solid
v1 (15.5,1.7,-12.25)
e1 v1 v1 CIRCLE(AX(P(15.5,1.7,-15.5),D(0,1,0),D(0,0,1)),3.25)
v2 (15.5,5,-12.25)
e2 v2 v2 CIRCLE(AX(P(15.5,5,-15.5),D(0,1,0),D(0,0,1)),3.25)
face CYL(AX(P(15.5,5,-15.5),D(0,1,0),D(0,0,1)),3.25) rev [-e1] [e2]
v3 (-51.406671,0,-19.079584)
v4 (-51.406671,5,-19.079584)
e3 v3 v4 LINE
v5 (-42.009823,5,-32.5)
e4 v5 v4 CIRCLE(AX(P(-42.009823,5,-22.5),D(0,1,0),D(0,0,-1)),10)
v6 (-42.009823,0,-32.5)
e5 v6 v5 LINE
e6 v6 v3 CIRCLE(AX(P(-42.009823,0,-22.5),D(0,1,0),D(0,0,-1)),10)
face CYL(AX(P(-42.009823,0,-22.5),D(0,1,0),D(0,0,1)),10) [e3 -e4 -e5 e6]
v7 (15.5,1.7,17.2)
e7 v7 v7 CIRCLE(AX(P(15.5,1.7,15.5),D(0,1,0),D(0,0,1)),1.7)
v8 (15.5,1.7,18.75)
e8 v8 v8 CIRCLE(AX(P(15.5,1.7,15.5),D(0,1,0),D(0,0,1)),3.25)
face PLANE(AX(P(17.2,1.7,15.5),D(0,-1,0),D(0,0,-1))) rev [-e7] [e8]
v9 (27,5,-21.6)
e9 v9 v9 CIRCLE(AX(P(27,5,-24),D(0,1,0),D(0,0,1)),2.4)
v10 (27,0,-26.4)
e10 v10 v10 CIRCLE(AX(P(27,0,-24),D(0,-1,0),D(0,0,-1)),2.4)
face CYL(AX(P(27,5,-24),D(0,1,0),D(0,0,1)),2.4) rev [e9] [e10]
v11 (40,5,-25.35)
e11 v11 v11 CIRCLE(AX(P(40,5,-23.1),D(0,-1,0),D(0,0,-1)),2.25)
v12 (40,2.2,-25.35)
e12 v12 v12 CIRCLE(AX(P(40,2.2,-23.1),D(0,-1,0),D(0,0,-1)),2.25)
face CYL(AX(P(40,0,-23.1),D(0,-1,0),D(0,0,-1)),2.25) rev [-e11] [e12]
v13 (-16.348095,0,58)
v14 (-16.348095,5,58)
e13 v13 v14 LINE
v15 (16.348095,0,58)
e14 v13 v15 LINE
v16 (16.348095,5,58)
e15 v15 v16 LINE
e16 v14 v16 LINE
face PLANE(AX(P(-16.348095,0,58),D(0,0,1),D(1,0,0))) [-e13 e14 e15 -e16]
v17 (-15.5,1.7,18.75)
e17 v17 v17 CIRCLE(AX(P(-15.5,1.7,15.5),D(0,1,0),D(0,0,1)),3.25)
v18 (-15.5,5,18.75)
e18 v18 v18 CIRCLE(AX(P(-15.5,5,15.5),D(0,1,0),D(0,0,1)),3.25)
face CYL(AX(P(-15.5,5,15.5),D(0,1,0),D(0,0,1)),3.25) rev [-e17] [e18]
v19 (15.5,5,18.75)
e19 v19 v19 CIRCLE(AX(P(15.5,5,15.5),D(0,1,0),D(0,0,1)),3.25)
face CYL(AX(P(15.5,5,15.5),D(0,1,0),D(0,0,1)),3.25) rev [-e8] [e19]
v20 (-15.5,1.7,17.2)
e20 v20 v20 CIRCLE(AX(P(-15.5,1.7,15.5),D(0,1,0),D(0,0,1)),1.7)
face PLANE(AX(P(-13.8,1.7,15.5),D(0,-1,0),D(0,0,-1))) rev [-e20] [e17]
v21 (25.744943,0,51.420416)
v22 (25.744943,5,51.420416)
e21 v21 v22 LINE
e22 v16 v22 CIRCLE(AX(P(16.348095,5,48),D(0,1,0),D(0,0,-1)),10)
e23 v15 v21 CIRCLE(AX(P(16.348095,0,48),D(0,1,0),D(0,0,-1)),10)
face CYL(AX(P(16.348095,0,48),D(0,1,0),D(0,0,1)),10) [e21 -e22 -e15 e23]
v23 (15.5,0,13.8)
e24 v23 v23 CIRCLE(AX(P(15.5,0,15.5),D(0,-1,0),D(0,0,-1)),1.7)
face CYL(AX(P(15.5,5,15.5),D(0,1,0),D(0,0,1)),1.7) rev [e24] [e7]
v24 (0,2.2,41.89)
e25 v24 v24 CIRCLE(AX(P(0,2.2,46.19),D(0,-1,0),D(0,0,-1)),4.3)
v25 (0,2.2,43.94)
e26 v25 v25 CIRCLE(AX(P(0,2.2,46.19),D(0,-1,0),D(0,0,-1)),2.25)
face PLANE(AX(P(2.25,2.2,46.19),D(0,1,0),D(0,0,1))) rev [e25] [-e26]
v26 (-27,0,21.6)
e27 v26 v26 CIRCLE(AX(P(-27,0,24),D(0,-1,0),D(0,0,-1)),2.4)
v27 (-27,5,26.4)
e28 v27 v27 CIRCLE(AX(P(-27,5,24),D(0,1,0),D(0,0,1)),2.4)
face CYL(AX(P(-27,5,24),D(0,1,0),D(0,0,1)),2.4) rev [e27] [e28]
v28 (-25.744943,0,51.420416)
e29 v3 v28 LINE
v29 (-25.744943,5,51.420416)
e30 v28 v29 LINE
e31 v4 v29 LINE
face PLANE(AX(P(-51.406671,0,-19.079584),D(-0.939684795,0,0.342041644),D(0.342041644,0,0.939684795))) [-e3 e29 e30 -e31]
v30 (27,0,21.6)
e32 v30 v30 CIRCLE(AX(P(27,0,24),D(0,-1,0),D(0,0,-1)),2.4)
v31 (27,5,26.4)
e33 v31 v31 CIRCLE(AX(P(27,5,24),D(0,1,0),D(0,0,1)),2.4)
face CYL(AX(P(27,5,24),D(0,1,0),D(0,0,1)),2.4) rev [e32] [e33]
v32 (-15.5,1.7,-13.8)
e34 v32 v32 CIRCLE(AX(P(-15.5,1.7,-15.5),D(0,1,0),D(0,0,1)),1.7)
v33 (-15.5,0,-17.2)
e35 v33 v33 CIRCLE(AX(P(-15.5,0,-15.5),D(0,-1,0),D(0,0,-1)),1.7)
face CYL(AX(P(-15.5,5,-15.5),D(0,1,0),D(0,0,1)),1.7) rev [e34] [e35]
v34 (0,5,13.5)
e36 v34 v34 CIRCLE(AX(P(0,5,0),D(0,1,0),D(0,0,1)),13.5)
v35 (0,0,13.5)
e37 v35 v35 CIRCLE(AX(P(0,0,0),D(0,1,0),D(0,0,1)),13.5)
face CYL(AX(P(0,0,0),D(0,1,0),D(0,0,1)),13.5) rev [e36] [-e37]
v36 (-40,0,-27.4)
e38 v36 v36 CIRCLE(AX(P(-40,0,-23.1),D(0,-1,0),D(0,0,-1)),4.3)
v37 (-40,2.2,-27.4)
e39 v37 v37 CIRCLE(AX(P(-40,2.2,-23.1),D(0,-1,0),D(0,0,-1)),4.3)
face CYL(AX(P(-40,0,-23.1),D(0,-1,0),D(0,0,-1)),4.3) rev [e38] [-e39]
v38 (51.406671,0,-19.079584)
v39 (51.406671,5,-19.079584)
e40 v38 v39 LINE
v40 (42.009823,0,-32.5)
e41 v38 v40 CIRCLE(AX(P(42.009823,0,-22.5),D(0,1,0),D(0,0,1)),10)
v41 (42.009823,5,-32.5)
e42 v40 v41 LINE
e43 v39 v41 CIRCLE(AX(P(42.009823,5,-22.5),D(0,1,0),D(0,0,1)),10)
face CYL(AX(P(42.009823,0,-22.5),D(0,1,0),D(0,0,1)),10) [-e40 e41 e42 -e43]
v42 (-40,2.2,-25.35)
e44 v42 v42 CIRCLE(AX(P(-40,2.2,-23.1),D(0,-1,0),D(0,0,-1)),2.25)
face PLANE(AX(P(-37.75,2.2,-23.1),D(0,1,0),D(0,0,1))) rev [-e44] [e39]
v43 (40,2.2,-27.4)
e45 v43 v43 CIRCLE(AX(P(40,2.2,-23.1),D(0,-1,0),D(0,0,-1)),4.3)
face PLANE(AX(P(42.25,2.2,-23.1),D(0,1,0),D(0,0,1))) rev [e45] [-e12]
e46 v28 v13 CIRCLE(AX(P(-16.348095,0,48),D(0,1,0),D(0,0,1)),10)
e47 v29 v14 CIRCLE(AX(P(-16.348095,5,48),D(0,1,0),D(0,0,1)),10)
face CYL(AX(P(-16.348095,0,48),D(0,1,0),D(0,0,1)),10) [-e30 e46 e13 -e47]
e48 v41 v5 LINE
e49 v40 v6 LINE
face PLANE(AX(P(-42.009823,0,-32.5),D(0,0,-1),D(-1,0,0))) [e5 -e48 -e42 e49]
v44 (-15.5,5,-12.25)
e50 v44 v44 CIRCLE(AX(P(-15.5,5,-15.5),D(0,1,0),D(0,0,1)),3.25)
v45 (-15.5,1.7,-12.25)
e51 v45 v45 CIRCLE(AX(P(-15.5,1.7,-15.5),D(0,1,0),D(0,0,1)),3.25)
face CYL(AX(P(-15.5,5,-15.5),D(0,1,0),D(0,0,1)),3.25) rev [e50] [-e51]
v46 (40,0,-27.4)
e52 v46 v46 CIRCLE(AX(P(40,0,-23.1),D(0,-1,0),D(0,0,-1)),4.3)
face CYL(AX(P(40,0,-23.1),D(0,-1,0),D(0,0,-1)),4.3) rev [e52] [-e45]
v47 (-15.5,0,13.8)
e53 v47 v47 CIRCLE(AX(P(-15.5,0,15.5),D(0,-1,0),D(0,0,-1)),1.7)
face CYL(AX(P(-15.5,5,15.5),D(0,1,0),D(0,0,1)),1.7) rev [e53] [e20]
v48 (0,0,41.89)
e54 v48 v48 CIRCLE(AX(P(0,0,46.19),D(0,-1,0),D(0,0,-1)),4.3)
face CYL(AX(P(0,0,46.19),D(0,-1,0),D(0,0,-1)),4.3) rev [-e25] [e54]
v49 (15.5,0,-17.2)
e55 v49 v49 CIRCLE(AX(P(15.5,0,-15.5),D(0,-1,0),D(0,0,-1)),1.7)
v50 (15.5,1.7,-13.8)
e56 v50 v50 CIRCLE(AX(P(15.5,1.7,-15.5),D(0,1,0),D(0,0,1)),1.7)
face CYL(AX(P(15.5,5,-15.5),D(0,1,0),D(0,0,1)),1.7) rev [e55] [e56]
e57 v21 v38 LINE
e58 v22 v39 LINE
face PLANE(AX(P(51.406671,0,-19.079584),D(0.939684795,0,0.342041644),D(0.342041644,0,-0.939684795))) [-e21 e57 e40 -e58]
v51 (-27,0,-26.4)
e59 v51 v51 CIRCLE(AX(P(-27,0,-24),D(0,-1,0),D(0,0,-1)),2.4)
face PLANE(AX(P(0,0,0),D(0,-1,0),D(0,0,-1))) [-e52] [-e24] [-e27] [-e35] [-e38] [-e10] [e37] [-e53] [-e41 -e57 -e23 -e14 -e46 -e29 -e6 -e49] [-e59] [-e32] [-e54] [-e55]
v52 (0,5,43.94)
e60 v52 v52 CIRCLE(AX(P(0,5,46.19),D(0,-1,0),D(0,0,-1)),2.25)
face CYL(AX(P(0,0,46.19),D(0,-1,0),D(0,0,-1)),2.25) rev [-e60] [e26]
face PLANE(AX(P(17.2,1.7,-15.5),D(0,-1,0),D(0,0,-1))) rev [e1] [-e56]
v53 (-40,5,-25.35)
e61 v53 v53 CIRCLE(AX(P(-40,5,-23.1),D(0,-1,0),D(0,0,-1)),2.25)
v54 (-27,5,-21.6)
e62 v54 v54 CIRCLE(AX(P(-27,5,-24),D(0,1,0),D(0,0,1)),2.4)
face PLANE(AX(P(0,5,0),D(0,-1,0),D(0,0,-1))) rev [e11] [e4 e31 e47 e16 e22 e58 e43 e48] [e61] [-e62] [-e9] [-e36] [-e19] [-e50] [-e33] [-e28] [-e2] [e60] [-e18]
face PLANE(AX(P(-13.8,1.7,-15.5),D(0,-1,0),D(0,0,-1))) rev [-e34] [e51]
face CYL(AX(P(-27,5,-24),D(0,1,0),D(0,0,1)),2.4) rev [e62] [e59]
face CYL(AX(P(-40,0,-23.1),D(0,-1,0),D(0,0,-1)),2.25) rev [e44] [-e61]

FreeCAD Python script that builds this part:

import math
import FreeCAD as App
import Part
import Sketcher

V = App.Vector


def add_polygon(sketch, points):
    """Adds a closed chain of lines whose ends are joined by coincident constraints."""
    first, n = sketch.GeometryCount, len(points)
    for a, b in zip(points, points[1:] + points[:1]):
        sketch.addGeometry(Part.LineSegment(App.Vector(*a, 0), App.Vector(*b, 0)), False)
    for i in range(n):
        sketch.addConstraint(Sketcher.Constraint("Coincident", first + i, 2, first + (i + 1) % n, 1))

doc = App.newDocument("Part")
body = doc.addObject("PartDesign::Body", "Body")

# Sketch on XZ plane
sketch1 = body.newObject("Sketcher::SketchObject", "Sketch")
sketch1.AttachmentSupport = (doc.getObject("XZ_Plane"), [""])
sketch1.MapMode = "FlatFace"
add_polygon(sketch1, [(-65, -65), (-65, 65), (65, 65), (65, -65)])  # lines 0-3
sketch1.addConstraint([
    Sketcher.Constraint("Vertical", 0),
    Sketcher.Constraint("Horizontal", 1),
    Sketcher.Constraint("Vertical", 2),
    Sketcher.Constraint("Horizontal", 3),
    Sketcher.Constraint("Symmetric", 0, 2, 2, 2, -1, 1),
    Sketcher.Constraint("Equal", 3, 0),
    Sketcher.Constraint("DistanceX", 1, 1, 1, 2, 130.0),
])
pad1 = body.newObject("PartDesign::Pad", "Pad")
pad1.Profile = sketch1
pad1.Length = 5
pad1.Reversed = True

# Sketch on XZ plane
sketch2 = body.newObject("Sketcher::SketchObject", "Sketch001")
sketch2.AttachmentSupport = (doc.getObject("XZ_Plane"), [""])
sketch2.MapMode = "FlatFace"
sketch2.AttachmentOffset = App.Placement(V(0, 0, -5), App.Rotation())
sketch2.addGeometry(Part.Circle(V(0, 0, 0), V(0, 0, 1), 14), False)
sketch2.addConstraint([
    Sketcher.Constraint("Coincident", 0, 3, -1, 1),
    Sketcher.Constraint("Diameter", 0, 27.0),
])
pocket1 = body.newObject("PartDesign::Pocket", "Pocket")
pocket1.Profile = sketch2
pocket1.Length = 5
pocket1.Reversed = True

# Sketch on XZ plane
sketch3 = body.newObject("Sketcher::SketchObject", "Sketch002")
sketch3.AttachmentSupport = (doc.getObject("XZ_Plane"), [""])
sketch3.MapMode = "FlatFace"
sketch3.AttachmentOffset = App.Placement(V(0, 0, -5), App.Rotation())
add_polygon(sketch3, [(-65, -65), (-65, 65), (65, 65), (65, -65)])  # lines 0-3
sketch3.addGeometry(Part.ArcOfCircle(Part.Circle(V(-42, -22, 0), V(0, 0, 1), 10), math.radians(160), math.radians(270)), False)  # 4
sketch3.addGeometry(Part.LineSegment(V(-42, -32, 0), V(42, -32, 0)), False)  # 5
sketch3.addGeometry(Part.ArcOfCircle(Part.Circle(V(42, -22, 0), V(0, 0, 1), 10), math.radians(-90), math.radians(20)), False)  # 6
sketch3.addGeometry(Part.LineSegment(V(51, -19, 0), V(26, 51, 0)), False)  # 7
sketch3.addGeometry(Part.ArcOfCircle(Part.Circle(V(16, 48, 0), V(0, 0, 1), 10), math.radians(20), math.radians(90)), False)  # 8
sketch3.addGeometry(Part.LineSegment(V(16, 58, 0), V(-16, 58, 0)), False)  # 9
sketch3.addGeometry(Part.ArcOfCircle(Part.Circle(V(-16, 48, 0), V(0, 0, 1), 10), math.radians(90), math.radians(160)), False)  # 10
sketch3.addGeometry(Part.LineSegment(V(-26, 51, 0), V(-51, -19, 0)), False)  # 11
sketch3.addConstraint([
    Sketcher.Constraint("Tangent", 4, 2, 5, 1),
    Sketcher.Constraint("Tangent", 5, 2, 6, 1),
    Sketcher.Constraint("Tangent", 6, 2, 7, 1),
    Sketcher.Constraint("Tangent", 7, 2, 8, 1),
    Sketcher.Constraint("Tangent", 8, 2, 9, 1),
    Sketcher.Constraint("Tangent", 9, 2, 10, 1),
    Sketcher.Constraint("Tangent", 10, 2, 11, 1),
    Sketcher.Constraint("Tangent", 11, 2, 4, 1),
    Sketcher.Constraint("Vertical", 0),
    Sketcher.Constraint("Horizontal", 1),
    Sketcher.Constraint("Vertical", 2),
    Sketcher.Constraint("Horizontal", 3),
    Sketcher.Constraint("Horizontal", 5),
    Sketcher.Constraint("Horizontal", 9),
    Sketcher.Constraint("Equal", 4, 6),
    Sketcher.Constraint("Equal", 6, 8),
    Sketcher.Constraint("Equal", 8, 10),
    Sketcher.Constraint("Symmetric", 0, 2, 2, 2, -1, 1),
    Sketcher.Constraint("Symmetric", 7, 2, 10, 2, -2),
    Sketcher.Constraint("Equal", 3, 0),
    Sketcher.Constraint("Radius", 4, 10.0),
    Sketcher.Constraint("DistanceX", 1, 1, 1, 2, 130.0),
    Sketcher.Constraint("DistanceY", -1, 1, 8, 3, 48.0),
    Sketcher.Constraint("DistanceY", 4, 3, -1, 1, 22.5),
    Sketcher.Constraint("DistanceX", 9, 2, 9, 1, 32.69619),
    Sketcher.Constraint("DistanceX", 5, 1, 5, 2, 84.019647),
])
pocket2 = body.newObject("PartDesign::Pocket", "Pocket001")
pocket2.Profile = sketch3
pocket2.Type = "ThroughAll"
pocket2.Reversed = True

# Sketch on XZ plane
sketch4 = body.newObject("Sketcher::SketchObject", "Sketch003")
sketch4.AttachmentSupport = (doc.getObject("XZ_Plane"), [""])
sketch4.MapMode = "FlatFace"
sketch4.AttachmentOffset = App.Placement(V(0, 0, -5), App.Rotation())
sketch4.addGeometry([
    Part.Circle(V(-27, -24, 0), V(0, 0, 1), 2.4),
    Part.Circle(V(27, -24, 0), V(0, 0, 1), 2.4),
    Part.Circle(V(27, 24, 0), V(0, 0, 1), 2.4),
    Part.Circle(V(-27, 24, 0), V(0, 0, 1), 2.4),
], False)
sketch4.addConstraint([
    Sketcher.Constraint("Equal", 0, 1),
    Sketcher.Constraint("Equal", 1, 2),
    Sketcher.Constraint("Equal", 2, 3),
    Sketcher.Constraint("Symmetric", 0, 3, 2, 3, -1, 1),
    Sketcher.Constraint("Symmetric", 1, 3, 3, 3, -1, 1),
    Sketcher.Constraint("Symmetric", 0, 3, 1, 3, -2),
    Sketcher.Constraint("Diameter", 0, 4.8),
    Sketcher.Constraint("DistanceX", 0, 3, -1, 1, 27.0),
    Sketcher.Constraint("DistanceY", 0, 3, -1, 1, 24.0),
])
doc.recompute()
hole = body.newObject("PartDesign::Hole", "Hole")
hole.Profile = sketch4
hole.ThreadType = "None"
hole.Diameter = 4.8
hole.DepthType = "Dimension"
hole.Depth = 5
hole.DrillPoint = "Flat"
hole.Reversed = True

# Sketch on XZ plane
sketch5 = body.newObject("Sketcher::SketchObject", "Sketch004")
sketch5.AttachmentSupport = (doc.getObject("XZ_Plane"), [""])
sketch5.MapMode = "FlatFace"
sketch5.AttachmentOffset = App.Placement(V(0, 0, -5), App.Rotation())
sketch5.addGeometry([
    Part.Circle(V(-15.5, -15.5, 0), V(0, 0, 1), 1.7),
    Part.Circle(V(15.5, -15.5, 0), V(0, 0, 1), 1.7),
    Part.Circle(V(15.5, 15.5, 0), V(0, 0, 1), 1.7),
    Part.Circle(V(-15.5, 15.5, 0), V(0, 0, 1), 1.7),
], False)
sketch5.addConstraint([
    Sketcher.Constraint("Equal", 0, 1),
    Sketcher.Constraint("Equal", 1, 2),
    Sketcher.Constraint("Equal", 2, 3),
    Sketcher.Constraint("Symmetric", 0, 3, 2, 3, -1, 1),
    Sketcher.Constraint("Symmetric", 1, 3, 3, 3, -1, 1),
    Sketcher.Constraint("Symmetric", 0, 3, 1, 3, -2),
    Sketcher.Constraint("Diameter", 0, 3.4),
    Sketcher.Constraint("DistanceX", 0, 3, 1, 3, 31.0),
    Sketcher.Constraint("DistanceY", 1, 3, 2, 3, 31.0),
])
doc.recompute()
hole2 = body.newObject("PartDesign::Hole", "Hole001")
hole2.Profile = sketch5
hole2.ThreadType = "None"
hole2.Diameter = 3.4
hole2.DepthType = "Dimension"
hole2.Depth = 5
hole2.DrillPoint = "Flat"
hole2.HoleCutType = "Counterbore"
hole2.HoleCutDiameter = 6.5
hole2.HoleCutDepth = 3.3
hole2.Reversed = True

# Sketch on XZ plane
sketch6 = body.newObject("Sketcher::SketchObject", "Sketch005")
sketch6.AttachmentSupport = (doc.getObject("XZ_Plane"), [""])
sketch6.MapMode = "FlatFace"
sketch6.addGeometry([
    Part.Circle(V(0, 46.2, 0), V(0, 0, 1), 2.2),
    Part.Circle(V(-40, -23.1, 0), V(0, 0, 1), 2.2),
    Part.Circle(V(40, -23.1, 0), V(0, 0, 1), 2.2),
], False)
sketch6.addConstraint([
    Sketcher.Constraint("Equal", 0, 1),
    Sketcher.Constraint("Equal", 1, 2),
    Sketcher.Constraint("Symmetric", 1, 3, 2, 3, -2),
    Sketcher.Constraint("PointOnObject", 0, 3, -2),
    Sketcher.Constraint("Diameter", 0, 4.5),
    Sketcher.Constraint("DistanceX", 1, 3, -1, 1, 40.0),
    Sketcher.Constraint("DistanceY", 1, 3, -1, 1, 23.1),
    Sketcher.Constraint("DistanceY", -1, 1, 0, 3, 46.19),
])
doc.recompute()
hole3 = body.newObject("PartDesign::Hole", "Hole002")
hole3.Profile = sketch6
hole3.ThreadType = "None"
hole3.Diameter = 4.5
hole3.DepthType = "Dimension"
hole3.Depth = 5
hole3.DrillPoint = "Flat"
hole3.HoleCutType = "Counterbore"
hole3.HoleCutDiameter = 8.6
hole3.HoleCutDepth = 2.2

doc.recompute()
